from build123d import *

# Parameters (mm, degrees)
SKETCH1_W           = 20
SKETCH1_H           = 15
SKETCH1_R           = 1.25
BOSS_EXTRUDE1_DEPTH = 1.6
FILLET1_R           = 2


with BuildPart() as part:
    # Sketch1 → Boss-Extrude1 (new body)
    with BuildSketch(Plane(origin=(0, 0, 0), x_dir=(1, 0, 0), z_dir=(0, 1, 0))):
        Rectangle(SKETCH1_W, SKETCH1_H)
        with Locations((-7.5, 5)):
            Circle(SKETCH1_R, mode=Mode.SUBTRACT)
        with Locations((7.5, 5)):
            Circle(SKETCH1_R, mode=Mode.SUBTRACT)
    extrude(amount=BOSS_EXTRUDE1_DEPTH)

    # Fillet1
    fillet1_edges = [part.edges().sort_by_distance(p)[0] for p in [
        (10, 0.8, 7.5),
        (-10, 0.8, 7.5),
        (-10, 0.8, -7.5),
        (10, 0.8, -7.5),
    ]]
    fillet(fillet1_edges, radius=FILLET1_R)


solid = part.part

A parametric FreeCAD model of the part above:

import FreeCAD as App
import Part
import Sketcher

V = App.Vector
Q = App.Units.Quantity


def edges_at(feature, points):
    """Names of the edges that pass closest to the given points."""
    edges = feature.Shape.Edges
    near = lambda p: min(range(len(edges)), key=lambda i: edges[i].distToShape(Part.Vertex(*p))[0])
    return sorted({f"Edge{near(p) + 1}" for p in points})


def add_polygon(sketch, points):
    """Adds a closed chain of lines whose ends are joined by coincident constraints."""
    first, n = sketch.GeometryCount, len(points)
    for a, b in zip(points, points[1:] + points[:1]):
        sketch.addGeometry(Part.LineSegment(App.Vector(*a, 0), App.Vector(*b, 0)), False)
    for i in range(n):
        sketch.addConstraint(Sketcher.Constraint("Coincident", first + i, 2, first + (i + 1) % n, 1))

doc = App.newDocument("Part")
body = doc.addObject("PartDesign::Body", "Body")

sketch1 = body.newObject("Sketcher::SketchObject", "Sketch")
sketch1.AttachmentSupport = (doc.getObject("XZ_Plane"), [""])
sketch1.MapMode = "FlatFace"
add_polygon(sketch1, [(-10, -7.5), (-10, 7.5), (10, 7.5), (10, -7.5)])
sketch1.addGeometry(Part.Circle(V(-7.5, -5, 0), V(0, 0, 1), 1.25), False)
sketch1.addGeometry(Part.Circle(V(7.5, -5, 0), V(0, 0, 1), 1.25), False)
sketch1.addConstraint([
    Sketcher.Constraint("Vertical", 0),
    Sketcher.Constraint("Horizontal", 1),
    Sketcher.Constraint("Vertical", 2),
    Sketcher.Constraint("Horizontal", 3),
    Sketcher.Constraint("Equal", 4, 5),
    Sketcher.Constraint("Symmetric", 0, 2, 2, 2, -1, 1),
    Sketcher.Constraint("Symmetric", 4, 3, 5, 3, -2),
    Sketcher.Constraint("Diameter", 4, Q("2.5 mm")),
    Sketcher.Constraint("DistanceX", 1, 1, 1, 2, Q("20 mm")),
    Sketcher.Constraint("DistanceY", 0, 1, 0, 2, Q("15 mm")),
    Sketcher.Constraint("DistanceY", 4, 3, -1, 1, Q("5 mm")),
    Sketcher.Constraint("DistanceX", 4, 3, 5, 3, Q("15 mm")),
])
pad1 = body.newObject("PartDesign::Pad", "Pad")
pad1.Profile = sketch1
pad1.Length = 1.6
pad1.Reversed = True
doc.recompute()

fillet = body.newObject("PartDesign::Fillet", "Fillet")
fillet.Base = (pad1, edges_at(pad1, [
    (10, 0.8, 7.5),
    (-10, 0.8, 7.5),
    (-10, 0.8, -7.5),
    (10, 0.8, -7.5),
]))
fillet.Radius = 2

doc.recompute()
